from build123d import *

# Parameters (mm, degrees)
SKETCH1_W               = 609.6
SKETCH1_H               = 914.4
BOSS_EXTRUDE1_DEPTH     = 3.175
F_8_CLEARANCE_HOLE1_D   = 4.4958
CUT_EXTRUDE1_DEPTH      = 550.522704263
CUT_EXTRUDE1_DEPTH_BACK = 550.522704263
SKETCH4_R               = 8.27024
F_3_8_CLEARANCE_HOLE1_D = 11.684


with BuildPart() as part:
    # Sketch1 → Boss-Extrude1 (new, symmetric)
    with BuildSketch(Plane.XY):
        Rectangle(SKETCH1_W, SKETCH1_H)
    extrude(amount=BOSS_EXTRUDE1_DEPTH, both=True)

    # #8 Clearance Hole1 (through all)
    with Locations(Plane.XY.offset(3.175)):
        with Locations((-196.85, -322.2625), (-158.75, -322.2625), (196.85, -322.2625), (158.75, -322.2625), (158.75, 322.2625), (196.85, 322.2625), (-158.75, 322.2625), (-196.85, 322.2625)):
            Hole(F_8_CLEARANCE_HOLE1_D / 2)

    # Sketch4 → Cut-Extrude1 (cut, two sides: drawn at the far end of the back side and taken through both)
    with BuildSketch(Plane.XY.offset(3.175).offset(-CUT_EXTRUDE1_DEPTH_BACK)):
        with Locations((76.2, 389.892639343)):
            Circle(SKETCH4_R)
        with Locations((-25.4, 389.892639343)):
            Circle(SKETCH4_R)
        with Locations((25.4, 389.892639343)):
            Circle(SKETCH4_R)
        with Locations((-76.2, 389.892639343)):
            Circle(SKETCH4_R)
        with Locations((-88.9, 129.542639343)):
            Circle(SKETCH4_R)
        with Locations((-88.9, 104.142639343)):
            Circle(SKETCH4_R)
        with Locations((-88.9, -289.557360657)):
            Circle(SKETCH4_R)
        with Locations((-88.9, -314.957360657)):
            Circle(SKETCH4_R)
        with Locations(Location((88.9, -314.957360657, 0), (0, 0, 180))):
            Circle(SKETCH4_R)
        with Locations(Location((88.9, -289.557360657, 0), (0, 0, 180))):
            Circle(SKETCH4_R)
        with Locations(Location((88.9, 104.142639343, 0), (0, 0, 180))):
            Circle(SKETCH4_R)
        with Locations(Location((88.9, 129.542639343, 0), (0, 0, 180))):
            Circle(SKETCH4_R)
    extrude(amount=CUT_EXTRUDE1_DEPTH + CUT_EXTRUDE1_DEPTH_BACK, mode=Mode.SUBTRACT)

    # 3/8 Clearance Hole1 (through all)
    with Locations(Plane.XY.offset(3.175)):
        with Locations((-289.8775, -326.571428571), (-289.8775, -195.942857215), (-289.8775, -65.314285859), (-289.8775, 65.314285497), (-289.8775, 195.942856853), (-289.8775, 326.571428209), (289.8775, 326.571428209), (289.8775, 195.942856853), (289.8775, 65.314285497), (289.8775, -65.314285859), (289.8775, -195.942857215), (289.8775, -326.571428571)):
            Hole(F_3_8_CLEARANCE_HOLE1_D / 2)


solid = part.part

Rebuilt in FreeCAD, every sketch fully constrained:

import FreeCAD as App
import Part
import Sketcher
Q = App.Units.Quantity

doc = App.newDocument("Part")
body = doc.addObject("PartDesign::Body", "Body")

sketch1 = body.newObject("Sketcher::SketchObject", "Sketch")
sketch1.AttachmentSupport = (doc.getObject("XY_Plane"), [""])
sketch1.MapMode = "FlatFace"
sketch1.addGeometry(Part.LineSegment(App.Vector(-305, 457, 0), App.Vector(-305, -457, 0)), False)
sketch1.addGeometry(Part.LineSegment(App.Vector(-305, -457, 0), App.Vector(305, -457, 0)), False)
sketch1.addGeometry(Part.LineSegment(App.Vector(305, -457, 0), App.Vector(305, 457, 0)), False)
sketch1.addGeometry(Part.LineSegment(App.Vector(305, 457, 0), App.Vector(-305, 457, 0)), False)
sketch1.addConstraint(Sketcher.Constraint("Coincident", 0, 2, 1, 1))
sketch1.addConstraint(Sketcher.Constraint("Coincident", 1, 2, 2, 1))
sketch1.addConstraint(Sketcher.Constraint("Coincident", 2, 2, 3, 1))
sketch1.addConstraint(Sketcher.Constraint("Coincident", 3, 2, 0, 1))
sketch1.addConstraint(Sketcher.Constraint("Vertical", 0))
sketch1.addConstraint(Sketcher.Constraint("Horizontal", 1))
sketch1.addConstraint(Sketcher.Constraint("Vertical", 2))
sketch1.addConstraint(Sketcher.Constraint("Horizontal", 3))
sketch1.addConstraint(Sketcher.Constraint("Symmetric", 0, 2, 2, 2, -1, 1))
sketch1.addConstraint(Sketcher.Constraint("DistanceX", 1, 1, 1, 2, Q("24 in")))
sketch1.addConstraint(Sketcher.Constraint("DistanceY", 0, 2, 0, 1, Q("36 in")))
pad1 = body.newObject("PartDesign::Pad", "Pad")
pad1.Profile = sketch1
pad1.Length = Q("0.25 in")
pad1.Midplane = True

sketch2 = body.newObject("Sketcher::SketchObject", "Sketch001")
sketch2.AttachmentSupport = (doc.getObject("XY_Plane"), [""])
sketch2.MapMode = "FlatFace"
sketch2.AttachmentOffset = App.Placement(App.Vector(0, 0, 0.125 * 25.4), App.Rotation())
sketch2.addGeometry(Part.Circle(App.Vector(-196.8, -322.3, 0), App.Vector(0, 0, 1), 2.2), False)
sketch2.addGeometry(Part.Circle(App.Vector(-158.8, -322.3, 0), App.Vector(0, 0, 1), 2.2), False)
sketch2.addGeometry(Part.Circle(App.Vector(196.8, -322.3, 0), App.Vector(0, 0, 1), 2.2), False)
sketch2.addGeometry(Part.Circle(App.Vector(158.8, -322.3, 0), App.Vector(0, 0, 1), 2.2), False)
sketch2.addGeometry(Part.Circle(App.Vector(158.8, 322.3, 0), App.Vector(0, 0, 1), 2.2), False)
sketch2.addGeometry(Part.Circle(App.Vector(196.8, 322.3, 0), App.Vector(0, 0, 1), 2.2), False)
sketch2.addGeometry(Part.Circle(App.Vector(-158.8, 322.3, 0), App.Vector(0, 0, 1), 2.2), False)
sketch2.addGeometry(Part.Circle(App.Vector(-196.8, 322.3, 0), App.Vector(0, 0, 1), 2.2), False)
sketch2.addConstraint(Sketcher.Constraint("Equal", 0, 1))
sketch2.addConstraint(Sketcher.Constraint("Equal", 1, 2))
sketch2.addConstraint(Sketcher.Constraint("Equal", 2, 3))
sketch2.addConstraint(Sketcher.Constraint("Equal", 3, 4))
sketch2.addConstraint(Sketcher.Constraint("Equal", 4, 5))
sketch2.addConstraint(Sketcher.Constraint("Equal", 5, 6))
sketch2.addConstraint(Sketcher.Constraint("Equal", 6, 7))
sketch2.addConstraint(Sketcher.Constraint("Symmetric", 1, 3, 4, 3, -1, 1))
sketch2.addConstraint(Sketcher.Constraint("Symmetric", 0, 3, 5, 3, -1, 1))
sketch2.addConstraint(Sketcher.Constraint("Symmetric", 3, 3, 6, 3, -1, 1))
sketch2.addConstraint(Sketcher.Constraint("Symmetric", 2, 3, 7, 3, -1, 1))
sketch2.addConstraint(Sketcher.Constraint("Symmetric", 0, 3, 2, 3, -2))
sketch2.addConstraint(Sketcher.Constraint("Symmetric", 1, 3, 3, 3, -2))
sketch2.addConstraint(Sketcher.Constraint("Horizontal", 0, 3, 1, 3))
sketch2.addConstraint(Sketcher.Constraint("Diameter", 0, Q("0.177 in")))
sketch2.addConstraint(Sketcher.Constraint("DistanceX", 1, 3, 2, 3, Q("14 in")))
sketch2.addConstraint(Sketcher.Constraint("DistanceX", 0, 3, 1, 3, Q("1.5 in")))
sketch2.addConstraint(Sketcher.Constraint("DistanceY", 0, 3, -1, 1, Q("12.6875 in")))
doc.recompute()
hole = body.newObject("PartDesign::Hole", "Hole")
hole.Profile = sketch2
hole.ThreadType = "None"
hole.Diameter = Q("0.177 in")
hole.DepthType = "ThroughAll"

sketch3 = body.newObject("Sketcher::SketchObject", "Sketch002")
sketch3.AttachmentSupport = (doc.getObject("XY_Plane"), [""])
sketch3.MapMode = "FlatFace"
sketch3.AttachmentOffset = App.Placement(App.Vector(0, 0, 0.125 * 25.4), App.Rotation())
sketch3.addGeometry(Part.Circle(App.Vector(76, 390, 0), App.Vector(0, 0, 1), 8), False)
sketch3.addGeometry(Part.Circle(App.Vector(-25, 390, 0), App.Vector(0, 0, 1), 8), False)
sketch3.addGeometry(Part.Circle(App.Vector(25, 390, 0), App.Vector(0, 0, 1), 8), False)
sketch3.addGeometry(Part.Circle(App.Vector(-76, 390, 0), App.Vector(0, 0, 1), 8), False)
sketch3.addGeometry(Part.Circle(App.Vector(-89, 130, 0), App.Vector(0, 0, 1), 8), False)
sketch3.addGeometry(Part.Circle(App.Vector(-89, 104, 0), App.Vector(0, 0, 1), 8), False)
sketch3.addGeometry(Part.Circle(App.Vector(-89, -290, 0), App.Vector(0, 0, 1), 8), False)
sketch3.addGeometry(Part.Circle(App.Vector(-89, -315, 0), App.Vector(0, 0, 1), 8), False)
sketch3.addGeometry(Part.Circle(App.Vector(89, -315, 0), App.Vector(0, 0, 1), 8), False)
sketch3.addGeometry(Part.Circle(App.Vector(89, -290, 0), App.Vector(0, 0, 1), 8), False)
sketch3.addGeometry(Part.Circle(App.Vector(89, 104, 0), App.Vector(0, 0, 1), 8), False)
sketch3.addGeometry(Part.Circle(App.Vector(89, 130, 0), App.Vector(0, 0, 1), 8), False)
sketch3.addConstraint(Sketcher.Constraint("Equal", 0, 1))
sketch3.addConstraint(Sketcher.Constraint("Equal", 1, 2))
sketch3.addConstraint(Sketcher.Constraint("Equal", 2, 3))
sketch3.addConstraint(Sketcher.Constraint("Equal", 3, 4))
sketch3.addConstraint(Sketcher.Constraint("Equal", 4, 5))
sketch3.addConstraint(Sketcher.Constraint("Equal", 5, 6))
sketch3.addConstraint(Sketcher.Constraint("Equal", 6, 7))
sketch3.addConstraint(Sketcher.Constraint("Equal", 7, 8))
sketch3.addConstraint(Sketcher.Constraint("Equal", 8, 9))
sketch3.addConstraint(Sketcher.Constraint("Equal", 9, 10))
sketch3.addConstraint(Sketcher.Constraint("Equal", 10, 11))
sketch3.addConstraint(Sketcher.Constraint("Symmetric", 1, 3, 2, 3, -2))
sketch3.addConstraint(Sketcher.Constraint("Symmetric", 0, 3, 3, 3, -2))
sketch3.addConstraint(Sketcher.Constraint("Symmetric", 7, 3, 8, 3, -2))
sketch3.addConstraint(Sketcher.Constraint("Symmetric", 6, 3, 9, 3, -2))
sketch3.addConstraint(Sketcher.Constraint("Symmetric", 5, 3, 10, 3, -2))
sketch3.addConstraint(Sketcher.Constraint("Symmetric", 4, 3, 11, 3, -2))
sketch3.addConstraint(Sketcher.Constraint("Horizontal", 0, 3, 1, 3))
sketch3.addConstraint(Sketcher.Constraint("Vertical", 4, 3, 5, 3))
sketch3.addConstraint(Sketcher.Constraint("Vertical", 5, 3, 6, 3))
sketch3.addConstraint(Sketcher.Constraint("Vertical", 6, 3, 7, 3))
sketch3.addConstraint(Sketcher.Constraint("DistanceX", -1, 1, 0, 3, Q("3 in")))
sketch3.addConstraint(Sketcher.Constraint("DistanceX", 1, 3, -1, 1, Q("1 in")))
sketch3.addConstraint(Sketcher.Constraint("DistanceY", 5, 3, 4, 3, Q("1 in")))
sketch3.addConstraint(Sketcher.Constraint("DistanceY", 7, 3, 6, 3, Q("1 in")))
sketch3.addConstraint(Sketcher.Constraint("DistanceX", 7, 3, 8, 3, Q("7 in")))
sketch3.addConstraint(Sketcher.Constraint("Diameter", 0, Q("0.6512 in")))
sketch3.addConstraint(Sketcher.Constraint("DistanceY", 6, 3, 5, 3, Q("15.5 in")))
sketch3.addConstraint(Sketcher.Constraint("DistanceY", 4, 3, 3, 3, Q("10.25 in")))
sketch3.addConstraint(Sketcher.Constraint("DistanceY", -1, 1, 0, 3, 389.892639))
pocket1 = body.newObject("PartDesign::Pocket", "Pocket")
pocket1.Profile = sketch3
pocket1.Type = "ThroughAll"
pocket1.Midplane = True

sketch4 = body.newObject("Sketcher::SketchObject", "Sketch003")
sketch4.AttachmentSupport = (doc.getObject("XY_Plane"), [""])
sketch4.MapMode = "FlatFace"
sketch4.AttachmentOffset = App.Placement(App.Vector(0, 0, 0.125 * 25.4), App.Rotation())
sketch4.addGeometry(Part.Circle(App.Vector(-290, -327, 0), App.Vector(0, 0, 1), 6), False)
sketch4.addGeometry(Part.Circle(App.Vector(-290, -196, 0), App.Vector(0, 0, 1), 6), False)
sketch4.addGeometry(Part.Circle(App.Vector(-290, -65, 0), App.Vector(0, 0, 1), 6), False)
sketch4.addGeometry(Part.Circle(App.Vector(-290, 65, 0), App.Vector(0, 0, 1), 6), False)
sketch4.addGeometry(Part.Circle(App.Vector(-290, 196, 0), App.Vector(0, 0, 1), 6), False)
sketch4.addGeometry(Part.Circle(App.Vector(-290, 327, 0), App.Vector(0, 0, 1), 6), False)
sketch4.addGeometry(Part.Circle(App.Vector(290, 327, 0), App.Vector(0, 0, 1), 6), False)
sketch4.addGeometry(Part.Circle(App.Vector(290, 196, 0), App.Vector(0, 0, 1), 6), False)
sketch4.addGeometry(Part.Circle(App.Vector(290, 65, 0), App.Vector(0, 0, 1), 6), False)
sketch4.addGeometry(Part.Circle(App.Vector(290, -65, 0), App.Vector(0, 0, 1), 6), False)
sketch4.addGeometry(Part.Circle(App.Vector(290, -196, 0), App.Vector(0, 0, 1), 6), False)
sketch4.addGeometry(Part.Circle(App.Vector(290, -327, 0), App.Vector(0, 0, 1), 6), False)
sketch4.addConstraint(Sketcher.Constraint("Equal", 0, 1))
sketch4.addConstraint(Sketcher.Constraint("Equal", 1, 2))
sketch4.addConstraint(Sketcher.Constraint("Equal", 2, 3))
sketch4.addConstraint(Sketcher.Constraint("Equal", 3, 4))
sketch4.addConstraint(Sketcher.Constraint("Equal", 4, 5))
sketch4.addConstraint(Sketcher.Constraint("Equal", 5, 6))
sketch4.addConstraint(Sketcher.Constraint("Equal", 6, 7))
sketch4.addConstraint(Sketcher.Constraint("Equal", 7, 8))
sketch4.addConstraint(Sketcher.Constraint("Equal", 8, 9))
sketch4.addConstraint(Sketcher.Constraint("Equal", 9, 10))
sketch4.addConstraint(Sketcher.Constraint("Equal", 10, 11))
sketch4.addConstraint(Sketcher.Constraint("Symmetric", 0, 3, 6, 3, -1, 1))
sketch4.addConstraint(Sketcher.Constraint("Symmetric", 1, 3, 7, 3, -1, 1))
sketch4.addConstraint(Sketcher.Constraint("Symmetric", 2, 3, 8, 3, -1, 1))
sketch4.addConstraint(Sketcher.Constraint("Symmetric", 3, 3, 9, 3, -1, 1))
sketch4.addConstraint(Sketcher.Constraint("Symmetric", 4, 3, 10, 3, -1, 1))
sketch4.addConstraint(Sketcher.Constraint("Symmetric", 5, 3, 11, 3, -1, 1))
sketch4.addConstraint(Sketcher.Constraint("Symmetric", 5, 3, 6, 3, -2))
sketch4.addConstraint(Sketcher.Constraint("Symmetric", 4, 3, 7, 3, -2))
sketch4.addConstraint(Sketcher.Constraint("Symmetric", 3, 3, 8, 3, -2))
sketch4.addConstraint(Sketcher.Constraint("Vertical", 0, 3, 1, 3))
sketch4.addConstraint(Sketcher.Constraint("Vertical", 1, 3, 2, 3))
sketch4.addConstraint(Sketcher.Constraint("Diameter", 0, Q("0.46 in")))
sketch4.addConstraint(Sketcher.Constraint("DistanceX", 5, 3, 6, 3, Q("22.825 in")))
sketch4.addConstraint(Sketcher.Constraint("DistanceY", 0, 3, -1, 1, 326.571429))
sketch4.addConstraint(Sketcher.Constraint("DistanceY", 0, 3, 1, 3, 130.628571))
sketch4.addConstraint(Sketcher.Constraint("DistanceY", 1, 3, 2, 3, 130.628571))
doc.recompute()
hole2 = body.newObject("PartDesign::Hole", "Hole001")
hole2.Profile = sketch4
hole2.ThreadType = "None"
hole2.Diameter = Q("0.46 in")
hole2.DepthType = "ThroughAll"

doc.recompute()
